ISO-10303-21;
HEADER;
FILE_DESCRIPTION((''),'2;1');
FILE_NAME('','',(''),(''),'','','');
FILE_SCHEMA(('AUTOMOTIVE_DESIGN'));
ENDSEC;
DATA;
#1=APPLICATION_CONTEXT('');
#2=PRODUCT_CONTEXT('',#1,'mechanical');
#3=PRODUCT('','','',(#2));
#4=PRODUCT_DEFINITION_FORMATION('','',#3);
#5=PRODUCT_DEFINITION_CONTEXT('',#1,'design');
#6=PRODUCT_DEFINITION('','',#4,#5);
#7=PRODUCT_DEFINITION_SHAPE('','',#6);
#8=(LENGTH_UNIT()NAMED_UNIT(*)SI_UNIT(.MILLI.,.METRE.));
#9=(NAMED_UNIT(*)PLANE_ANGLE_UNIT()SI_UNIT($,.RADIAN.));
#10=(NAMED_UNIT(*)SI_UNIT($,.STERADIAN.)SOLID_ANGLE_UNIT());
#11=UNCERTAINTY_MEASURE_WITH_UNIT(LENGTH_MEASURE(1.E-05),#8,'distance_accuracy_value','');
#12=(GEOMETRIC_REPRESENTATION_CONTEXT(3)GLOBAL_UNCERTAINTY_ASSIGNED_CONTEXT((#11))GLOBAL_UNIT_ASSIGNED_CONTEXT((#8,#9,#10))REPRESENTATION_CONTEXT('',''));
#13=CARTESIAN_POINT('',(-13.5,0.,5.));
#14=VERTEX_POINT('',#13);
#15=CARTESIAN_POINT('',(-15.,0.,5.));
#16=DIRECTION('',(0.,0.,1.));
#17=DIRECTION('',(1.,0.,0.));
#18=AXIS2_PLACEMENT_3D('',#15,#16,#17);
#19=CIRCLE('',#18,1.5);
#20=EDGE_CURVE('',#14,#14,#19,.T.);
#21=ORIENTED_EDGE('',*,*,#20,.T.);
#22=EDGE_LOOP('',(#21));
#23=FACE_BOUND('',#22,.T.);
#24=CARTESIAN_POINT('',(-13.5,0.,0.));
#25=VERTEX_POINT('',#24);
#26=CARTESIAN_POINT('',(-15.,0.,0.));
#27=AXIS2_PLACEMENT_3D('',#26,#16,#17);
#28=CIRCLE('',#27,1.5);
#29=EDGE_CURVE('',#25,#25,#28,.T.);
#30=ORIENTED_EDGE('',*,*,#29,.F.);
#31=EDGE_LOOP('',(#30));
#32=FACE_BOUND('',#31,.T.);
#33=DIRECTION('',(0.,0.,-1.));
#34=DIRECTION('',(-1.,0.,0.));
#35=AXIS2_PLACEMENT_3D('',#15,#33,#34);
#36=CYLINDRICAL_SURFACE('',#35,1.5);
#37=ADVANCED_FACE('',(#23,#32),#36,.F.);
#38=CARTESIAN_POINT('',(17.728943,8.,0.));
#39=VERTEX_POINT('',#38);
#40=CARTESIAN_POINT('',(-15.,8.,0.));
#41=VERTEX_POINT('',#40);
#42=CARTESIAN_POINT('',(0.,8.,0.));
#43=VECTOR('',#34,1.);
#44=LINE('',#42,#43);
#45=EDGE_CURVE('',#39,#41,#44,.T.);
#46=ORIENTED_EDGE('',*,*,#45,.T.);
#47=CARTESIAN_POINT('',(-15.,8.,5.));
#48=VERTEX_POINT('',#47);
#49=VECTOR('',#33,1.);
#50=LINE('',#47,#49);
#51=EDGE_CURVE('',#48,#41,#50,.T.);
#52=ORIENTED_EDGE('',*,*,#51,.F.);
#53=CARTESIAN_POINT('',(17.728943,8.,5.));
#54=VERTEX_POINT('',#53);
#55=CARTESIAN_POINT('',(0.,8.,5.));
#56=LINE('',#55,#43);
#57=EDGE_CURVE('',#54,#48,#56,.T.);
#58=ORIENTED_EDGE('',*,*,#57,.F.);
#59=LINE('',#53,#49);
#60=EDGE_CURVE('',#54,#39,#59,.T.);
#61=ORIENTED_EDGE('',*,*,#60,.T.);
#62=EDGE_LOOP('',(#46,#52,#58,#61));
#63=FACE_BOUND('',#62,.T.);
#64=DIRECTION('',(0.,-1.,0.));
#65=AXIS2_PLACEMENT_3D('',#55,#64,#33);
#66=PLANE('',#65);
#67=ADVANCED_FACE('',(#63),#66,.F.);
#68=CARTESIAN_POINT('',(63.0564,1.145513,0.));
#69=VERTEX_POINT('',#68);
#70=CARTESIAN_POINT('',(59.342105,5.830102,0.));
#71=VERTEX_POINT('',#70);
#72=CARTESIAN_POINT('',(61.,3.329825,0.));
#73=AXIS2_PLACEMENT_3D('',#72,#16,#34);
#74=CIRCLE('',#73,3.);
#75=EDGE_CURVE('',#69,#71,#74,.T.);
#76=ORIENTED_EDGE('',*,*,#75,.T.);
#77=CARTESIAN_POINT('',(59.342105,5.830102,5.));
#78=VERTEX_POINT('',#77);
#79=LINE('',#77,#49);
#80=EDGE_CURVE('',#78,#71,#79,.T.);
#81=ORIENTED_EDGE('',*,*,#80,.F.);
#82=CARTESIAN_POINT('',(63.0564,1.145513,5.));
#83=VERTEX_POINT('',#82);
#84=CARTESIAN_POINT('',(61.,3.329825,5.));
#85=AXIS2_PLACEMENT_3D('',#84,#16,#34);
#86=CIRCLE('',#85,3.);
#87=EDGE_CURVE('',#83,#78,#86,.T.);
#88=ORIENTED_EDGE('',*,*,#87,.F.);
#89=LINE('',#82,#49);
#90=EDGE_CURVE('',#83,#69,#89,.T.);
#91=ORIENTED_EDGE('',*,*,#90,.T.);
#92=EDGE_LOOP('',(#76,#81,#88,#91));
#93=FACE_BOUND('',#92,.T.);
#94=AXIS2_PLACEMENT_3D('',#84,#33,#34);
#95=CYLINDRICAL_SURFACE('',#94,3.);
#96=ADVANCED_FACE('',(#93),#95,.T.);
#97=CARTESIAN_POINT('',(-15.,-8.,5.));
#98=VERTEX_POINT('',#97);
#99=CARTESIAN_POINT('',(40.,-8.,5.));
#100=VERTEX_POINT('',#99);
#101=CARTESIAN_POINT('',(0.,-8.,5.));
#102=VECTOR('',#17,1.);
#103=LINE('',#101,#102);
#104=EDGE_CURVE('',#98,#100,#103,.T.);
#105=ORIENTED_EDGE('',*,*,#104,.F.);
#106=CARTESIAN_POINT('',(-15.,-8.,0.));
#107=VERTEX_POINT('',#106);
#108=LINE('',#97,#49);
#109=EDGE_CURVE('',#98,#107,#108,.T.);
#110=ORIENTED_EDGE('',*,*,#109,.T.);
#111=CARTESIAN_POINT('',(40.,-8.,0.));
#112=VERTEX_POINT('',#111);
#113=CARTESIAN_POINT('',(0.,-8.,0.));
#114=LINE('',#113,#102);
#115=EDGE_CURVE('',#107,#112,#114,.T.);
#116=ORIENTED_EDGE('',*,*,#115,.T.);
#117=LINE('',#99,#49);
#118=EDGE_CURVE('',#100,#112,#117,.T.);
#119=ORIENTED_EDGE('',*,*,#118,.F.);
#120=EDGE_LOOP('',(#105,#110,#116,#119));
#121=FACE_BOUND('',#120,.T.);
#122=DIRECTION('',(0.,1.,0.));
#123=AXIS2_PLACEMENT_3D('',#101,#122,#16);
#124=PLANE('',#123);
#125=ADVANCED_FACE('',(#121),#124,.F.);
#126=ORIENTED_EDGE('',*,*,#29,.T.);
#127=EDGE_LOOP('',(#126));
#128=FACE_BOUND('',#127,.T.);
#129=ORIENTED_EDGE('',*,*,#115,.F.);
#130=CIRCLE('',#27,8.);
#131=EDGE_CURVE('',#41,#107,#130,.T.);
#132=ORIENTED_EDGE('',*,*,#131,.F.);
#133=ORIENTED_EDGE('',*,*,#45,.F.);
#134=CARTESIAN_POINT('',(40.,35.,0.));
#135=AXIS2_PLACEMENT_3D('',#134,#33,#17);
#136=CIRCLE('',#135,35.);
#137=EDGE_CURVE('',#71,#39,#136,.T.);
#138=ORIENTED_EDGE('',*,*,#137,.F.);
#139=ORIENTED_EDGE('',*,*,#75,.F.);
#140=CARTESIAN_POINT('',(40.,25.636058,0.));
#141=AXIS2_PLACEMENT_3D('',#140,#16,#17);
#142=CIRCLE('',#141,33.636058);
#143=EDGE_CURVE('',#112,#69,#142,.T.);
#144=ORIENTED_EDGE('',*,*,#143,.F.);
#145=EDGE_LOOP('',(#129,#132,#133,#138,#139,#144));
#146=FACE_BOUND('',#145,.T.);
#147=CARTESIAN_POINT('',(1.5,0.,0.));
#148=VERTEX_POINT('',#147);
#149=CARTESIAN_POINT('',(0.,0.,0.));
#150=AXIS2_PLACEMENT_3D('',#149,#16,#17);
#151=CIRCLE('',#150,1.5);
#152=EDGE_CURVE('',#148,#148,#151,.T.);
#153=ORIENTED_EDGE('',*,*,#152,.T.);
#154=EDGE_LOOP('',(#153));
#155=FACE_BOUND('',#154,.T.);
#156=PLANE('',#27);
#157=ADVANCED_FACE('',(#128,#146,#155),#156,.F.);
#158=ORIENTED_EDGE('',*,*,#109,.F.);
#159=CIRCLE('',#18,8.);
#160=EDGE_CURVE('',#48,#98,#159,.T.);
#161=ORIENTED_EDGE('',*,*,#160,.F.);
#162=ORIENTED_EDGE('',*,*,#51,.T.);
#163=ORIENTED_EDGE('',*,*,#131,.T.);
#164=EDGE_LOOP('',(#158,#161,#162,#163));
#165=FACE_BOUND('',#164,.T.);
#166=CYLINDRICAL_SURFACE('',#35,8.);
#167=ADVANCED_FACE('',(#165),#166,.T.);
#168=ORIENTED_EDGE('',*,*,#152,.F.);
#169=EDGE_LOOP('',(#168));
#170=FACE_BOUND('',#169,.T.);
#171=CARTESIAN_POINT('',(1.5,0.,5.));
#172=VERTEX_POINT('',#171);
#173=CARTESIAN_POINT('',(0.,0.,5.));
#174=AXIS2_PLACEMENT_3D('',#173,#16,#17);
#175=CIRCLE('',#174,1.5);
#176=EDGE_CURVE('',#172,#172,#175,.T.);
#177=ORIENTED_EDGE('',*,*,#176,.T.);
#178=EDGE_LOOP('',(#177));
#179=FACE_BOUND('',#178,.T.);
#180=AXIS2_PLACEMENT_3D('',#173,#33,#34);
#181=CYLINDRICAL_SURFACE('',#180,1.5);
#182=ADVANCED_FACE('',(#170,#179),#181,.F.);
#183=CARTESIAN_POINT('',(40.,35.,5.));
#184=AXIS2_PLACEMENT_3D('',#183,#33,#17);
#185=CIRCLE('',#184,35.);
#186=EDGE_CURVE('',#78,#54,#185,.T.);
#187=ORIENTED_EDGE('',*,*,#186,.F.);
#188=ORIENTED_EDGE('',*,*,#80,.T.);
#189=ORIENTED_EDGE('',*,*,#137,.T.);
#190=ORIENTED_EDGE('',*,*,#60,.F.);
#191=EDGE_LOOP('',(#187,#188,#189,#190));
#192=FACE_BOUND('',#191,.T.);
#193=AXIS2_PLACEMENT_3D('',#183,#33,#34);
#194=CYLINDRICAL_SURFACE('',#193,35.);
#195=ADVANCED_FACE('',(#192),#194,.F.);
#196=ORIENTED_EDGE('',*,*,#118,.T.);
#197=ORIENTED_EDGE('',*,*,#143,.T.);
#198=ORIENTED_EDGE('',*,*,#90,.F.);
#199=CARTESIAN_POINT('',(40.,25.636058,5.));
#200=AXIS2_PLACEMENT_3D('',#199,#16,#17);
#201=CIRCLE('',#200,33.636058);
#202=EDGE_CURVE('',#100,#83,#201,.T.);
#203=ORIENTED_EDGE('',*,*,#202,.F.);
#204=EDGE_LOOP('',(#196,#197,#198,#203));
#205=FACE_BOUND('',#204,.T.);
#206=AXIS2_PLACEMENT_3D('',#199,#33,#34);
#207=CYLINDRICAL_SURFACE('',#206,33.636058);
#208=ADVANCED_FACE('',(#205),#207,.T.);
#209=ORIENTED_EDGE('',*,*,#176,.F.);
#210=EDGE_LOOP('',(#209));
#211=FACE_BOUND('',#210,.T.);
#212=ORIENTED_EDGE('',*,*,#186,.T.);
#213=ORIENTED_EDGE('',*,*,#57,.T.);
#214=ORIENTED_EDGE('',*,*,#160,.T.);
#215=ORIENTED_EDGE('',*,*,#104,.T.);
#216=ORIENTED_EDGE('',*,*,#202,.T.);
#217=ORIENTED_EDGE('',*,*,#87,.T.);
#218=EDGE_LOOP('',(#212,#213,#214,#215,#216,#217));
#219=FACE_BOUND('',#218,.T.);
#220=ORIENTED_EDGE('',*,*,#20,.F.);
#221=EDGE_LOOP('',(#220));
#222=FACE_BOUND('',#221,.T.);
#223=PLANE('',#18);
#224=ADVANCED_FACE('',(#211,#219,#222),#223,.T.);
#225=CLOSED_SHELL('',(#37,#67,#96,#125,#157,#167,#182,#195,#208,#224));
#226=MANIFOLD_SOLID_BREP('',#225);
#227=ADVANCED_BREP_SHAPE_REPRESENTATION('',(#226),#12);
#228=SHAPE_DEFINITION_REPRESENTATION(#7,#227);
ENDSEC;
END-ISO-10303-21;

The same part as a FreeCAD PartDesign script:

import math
import FreeCAD as App
import Part
import Sketcher

V = App.Vector

doc = App.newDocument("Part")
body = doc.addObject("PartDesign::Body", "Body")

sketch1 = doc.addObject("Sketcher::SketchObject", "Sketch")
body.addObject(sketch1)
sketch1.AttachmentSupport = (doc.XY_Plane, [""])
sketch1.MapMode = "FlatFace"
sketch1.addGeometry([
    Part.ArcOfCircle(Part.Circle(V(40, 35, 0), V(0, 0, 1), 35), math.radians(-129.517653), math.radians(-56.452262)),
    Part.LineSegment(V(17.728943, 8, 0), V(-15, 8, 0)),
    Part.ArcOfCircle(Part.Circle(V(-15, 0, 0), V(0, 0, 1), 8), math.radians(90), math.radians(270)),
    Part.LineSegment(V(-15, -8, 0), V(40, -8, 0)),
    Part.ArcOfCircle(Part.Circle(V(40, 25.636058, 0), V(0, 0, 1), 33.636058), math.radians(-90), math.radians(-46.727671)),
    Part.ArcOfCircle(Part.Circle(V(61, 3.329825, 0), V(0, 0, 1), 3), math.radians(-46.727671), math.radians(123.547738)),
    Part.Circle(V(0, 0, 0), V(0, 0, 1), 1.5),
    Part.Circle(V(-15, 0, 0), V(0, 0, 1), 1.5),
], False)
sketch1.addConstraint([
    Sketcher.Constraint("Coincident", 0, 1, 1, 1),
    Sketcher.Constraint("Tangent", 1, 2, 2, 1),
    Sketcher.Constraint("Tangent", 2, 2, 3, 1),
    Sketcher.Constraint("Tangent", 3, 2, 4, 1),
    Sketcher.Constraint("Tangent", 4, 2, 5, 1),
    Sketcher.Constraint("Tangent", 5, 2, 0, 2),
    Sketcher.Constraint("Horizontal", 1),
    Sketcher.Constraint("Horizontal", 3),
    Sketcher.Constraint("Coincident", 6, 3, -1, 1),
    Sketcher.Constraint("Coincident", 7, 3, 2, 3),
    Sketcher.Constraint("Equal", 6, 7),
    Sketcher.Constraint("PointOnObject", 2, 3, -1),
    Sketcher.Constraint("Vertical", 0, 3, 4, 3),
    Sketcher.Constraint("Diameter", 6, 3.0),
    Sketcher.Constraint("Radius", 0, 35.0),
    Sketcher.Constraint("Radius", 2, 8.0),
    Sketcher.Constraint("Radius", 5, 3.0),
    Sketcher.Constraint("DistanceX", 3, 1, 3, 2, 55.0),
    Sketcher.Constraint("DistanceX", -1, 1, 0, 3, 40.0),
    Sketcher.Constraint("DistanceY", -1, 1, 0, 3, 35.0),
    Sketcher.Constraint("DistanceX", -1, 1, 5, 3, 61.0),
])
pad1 = doc.addObject("PartDesign::Pad", "Pad")
body.addObject(pad1)
pad1.Profile = sketch1
pad1.Length = 5

doc.recompute()
